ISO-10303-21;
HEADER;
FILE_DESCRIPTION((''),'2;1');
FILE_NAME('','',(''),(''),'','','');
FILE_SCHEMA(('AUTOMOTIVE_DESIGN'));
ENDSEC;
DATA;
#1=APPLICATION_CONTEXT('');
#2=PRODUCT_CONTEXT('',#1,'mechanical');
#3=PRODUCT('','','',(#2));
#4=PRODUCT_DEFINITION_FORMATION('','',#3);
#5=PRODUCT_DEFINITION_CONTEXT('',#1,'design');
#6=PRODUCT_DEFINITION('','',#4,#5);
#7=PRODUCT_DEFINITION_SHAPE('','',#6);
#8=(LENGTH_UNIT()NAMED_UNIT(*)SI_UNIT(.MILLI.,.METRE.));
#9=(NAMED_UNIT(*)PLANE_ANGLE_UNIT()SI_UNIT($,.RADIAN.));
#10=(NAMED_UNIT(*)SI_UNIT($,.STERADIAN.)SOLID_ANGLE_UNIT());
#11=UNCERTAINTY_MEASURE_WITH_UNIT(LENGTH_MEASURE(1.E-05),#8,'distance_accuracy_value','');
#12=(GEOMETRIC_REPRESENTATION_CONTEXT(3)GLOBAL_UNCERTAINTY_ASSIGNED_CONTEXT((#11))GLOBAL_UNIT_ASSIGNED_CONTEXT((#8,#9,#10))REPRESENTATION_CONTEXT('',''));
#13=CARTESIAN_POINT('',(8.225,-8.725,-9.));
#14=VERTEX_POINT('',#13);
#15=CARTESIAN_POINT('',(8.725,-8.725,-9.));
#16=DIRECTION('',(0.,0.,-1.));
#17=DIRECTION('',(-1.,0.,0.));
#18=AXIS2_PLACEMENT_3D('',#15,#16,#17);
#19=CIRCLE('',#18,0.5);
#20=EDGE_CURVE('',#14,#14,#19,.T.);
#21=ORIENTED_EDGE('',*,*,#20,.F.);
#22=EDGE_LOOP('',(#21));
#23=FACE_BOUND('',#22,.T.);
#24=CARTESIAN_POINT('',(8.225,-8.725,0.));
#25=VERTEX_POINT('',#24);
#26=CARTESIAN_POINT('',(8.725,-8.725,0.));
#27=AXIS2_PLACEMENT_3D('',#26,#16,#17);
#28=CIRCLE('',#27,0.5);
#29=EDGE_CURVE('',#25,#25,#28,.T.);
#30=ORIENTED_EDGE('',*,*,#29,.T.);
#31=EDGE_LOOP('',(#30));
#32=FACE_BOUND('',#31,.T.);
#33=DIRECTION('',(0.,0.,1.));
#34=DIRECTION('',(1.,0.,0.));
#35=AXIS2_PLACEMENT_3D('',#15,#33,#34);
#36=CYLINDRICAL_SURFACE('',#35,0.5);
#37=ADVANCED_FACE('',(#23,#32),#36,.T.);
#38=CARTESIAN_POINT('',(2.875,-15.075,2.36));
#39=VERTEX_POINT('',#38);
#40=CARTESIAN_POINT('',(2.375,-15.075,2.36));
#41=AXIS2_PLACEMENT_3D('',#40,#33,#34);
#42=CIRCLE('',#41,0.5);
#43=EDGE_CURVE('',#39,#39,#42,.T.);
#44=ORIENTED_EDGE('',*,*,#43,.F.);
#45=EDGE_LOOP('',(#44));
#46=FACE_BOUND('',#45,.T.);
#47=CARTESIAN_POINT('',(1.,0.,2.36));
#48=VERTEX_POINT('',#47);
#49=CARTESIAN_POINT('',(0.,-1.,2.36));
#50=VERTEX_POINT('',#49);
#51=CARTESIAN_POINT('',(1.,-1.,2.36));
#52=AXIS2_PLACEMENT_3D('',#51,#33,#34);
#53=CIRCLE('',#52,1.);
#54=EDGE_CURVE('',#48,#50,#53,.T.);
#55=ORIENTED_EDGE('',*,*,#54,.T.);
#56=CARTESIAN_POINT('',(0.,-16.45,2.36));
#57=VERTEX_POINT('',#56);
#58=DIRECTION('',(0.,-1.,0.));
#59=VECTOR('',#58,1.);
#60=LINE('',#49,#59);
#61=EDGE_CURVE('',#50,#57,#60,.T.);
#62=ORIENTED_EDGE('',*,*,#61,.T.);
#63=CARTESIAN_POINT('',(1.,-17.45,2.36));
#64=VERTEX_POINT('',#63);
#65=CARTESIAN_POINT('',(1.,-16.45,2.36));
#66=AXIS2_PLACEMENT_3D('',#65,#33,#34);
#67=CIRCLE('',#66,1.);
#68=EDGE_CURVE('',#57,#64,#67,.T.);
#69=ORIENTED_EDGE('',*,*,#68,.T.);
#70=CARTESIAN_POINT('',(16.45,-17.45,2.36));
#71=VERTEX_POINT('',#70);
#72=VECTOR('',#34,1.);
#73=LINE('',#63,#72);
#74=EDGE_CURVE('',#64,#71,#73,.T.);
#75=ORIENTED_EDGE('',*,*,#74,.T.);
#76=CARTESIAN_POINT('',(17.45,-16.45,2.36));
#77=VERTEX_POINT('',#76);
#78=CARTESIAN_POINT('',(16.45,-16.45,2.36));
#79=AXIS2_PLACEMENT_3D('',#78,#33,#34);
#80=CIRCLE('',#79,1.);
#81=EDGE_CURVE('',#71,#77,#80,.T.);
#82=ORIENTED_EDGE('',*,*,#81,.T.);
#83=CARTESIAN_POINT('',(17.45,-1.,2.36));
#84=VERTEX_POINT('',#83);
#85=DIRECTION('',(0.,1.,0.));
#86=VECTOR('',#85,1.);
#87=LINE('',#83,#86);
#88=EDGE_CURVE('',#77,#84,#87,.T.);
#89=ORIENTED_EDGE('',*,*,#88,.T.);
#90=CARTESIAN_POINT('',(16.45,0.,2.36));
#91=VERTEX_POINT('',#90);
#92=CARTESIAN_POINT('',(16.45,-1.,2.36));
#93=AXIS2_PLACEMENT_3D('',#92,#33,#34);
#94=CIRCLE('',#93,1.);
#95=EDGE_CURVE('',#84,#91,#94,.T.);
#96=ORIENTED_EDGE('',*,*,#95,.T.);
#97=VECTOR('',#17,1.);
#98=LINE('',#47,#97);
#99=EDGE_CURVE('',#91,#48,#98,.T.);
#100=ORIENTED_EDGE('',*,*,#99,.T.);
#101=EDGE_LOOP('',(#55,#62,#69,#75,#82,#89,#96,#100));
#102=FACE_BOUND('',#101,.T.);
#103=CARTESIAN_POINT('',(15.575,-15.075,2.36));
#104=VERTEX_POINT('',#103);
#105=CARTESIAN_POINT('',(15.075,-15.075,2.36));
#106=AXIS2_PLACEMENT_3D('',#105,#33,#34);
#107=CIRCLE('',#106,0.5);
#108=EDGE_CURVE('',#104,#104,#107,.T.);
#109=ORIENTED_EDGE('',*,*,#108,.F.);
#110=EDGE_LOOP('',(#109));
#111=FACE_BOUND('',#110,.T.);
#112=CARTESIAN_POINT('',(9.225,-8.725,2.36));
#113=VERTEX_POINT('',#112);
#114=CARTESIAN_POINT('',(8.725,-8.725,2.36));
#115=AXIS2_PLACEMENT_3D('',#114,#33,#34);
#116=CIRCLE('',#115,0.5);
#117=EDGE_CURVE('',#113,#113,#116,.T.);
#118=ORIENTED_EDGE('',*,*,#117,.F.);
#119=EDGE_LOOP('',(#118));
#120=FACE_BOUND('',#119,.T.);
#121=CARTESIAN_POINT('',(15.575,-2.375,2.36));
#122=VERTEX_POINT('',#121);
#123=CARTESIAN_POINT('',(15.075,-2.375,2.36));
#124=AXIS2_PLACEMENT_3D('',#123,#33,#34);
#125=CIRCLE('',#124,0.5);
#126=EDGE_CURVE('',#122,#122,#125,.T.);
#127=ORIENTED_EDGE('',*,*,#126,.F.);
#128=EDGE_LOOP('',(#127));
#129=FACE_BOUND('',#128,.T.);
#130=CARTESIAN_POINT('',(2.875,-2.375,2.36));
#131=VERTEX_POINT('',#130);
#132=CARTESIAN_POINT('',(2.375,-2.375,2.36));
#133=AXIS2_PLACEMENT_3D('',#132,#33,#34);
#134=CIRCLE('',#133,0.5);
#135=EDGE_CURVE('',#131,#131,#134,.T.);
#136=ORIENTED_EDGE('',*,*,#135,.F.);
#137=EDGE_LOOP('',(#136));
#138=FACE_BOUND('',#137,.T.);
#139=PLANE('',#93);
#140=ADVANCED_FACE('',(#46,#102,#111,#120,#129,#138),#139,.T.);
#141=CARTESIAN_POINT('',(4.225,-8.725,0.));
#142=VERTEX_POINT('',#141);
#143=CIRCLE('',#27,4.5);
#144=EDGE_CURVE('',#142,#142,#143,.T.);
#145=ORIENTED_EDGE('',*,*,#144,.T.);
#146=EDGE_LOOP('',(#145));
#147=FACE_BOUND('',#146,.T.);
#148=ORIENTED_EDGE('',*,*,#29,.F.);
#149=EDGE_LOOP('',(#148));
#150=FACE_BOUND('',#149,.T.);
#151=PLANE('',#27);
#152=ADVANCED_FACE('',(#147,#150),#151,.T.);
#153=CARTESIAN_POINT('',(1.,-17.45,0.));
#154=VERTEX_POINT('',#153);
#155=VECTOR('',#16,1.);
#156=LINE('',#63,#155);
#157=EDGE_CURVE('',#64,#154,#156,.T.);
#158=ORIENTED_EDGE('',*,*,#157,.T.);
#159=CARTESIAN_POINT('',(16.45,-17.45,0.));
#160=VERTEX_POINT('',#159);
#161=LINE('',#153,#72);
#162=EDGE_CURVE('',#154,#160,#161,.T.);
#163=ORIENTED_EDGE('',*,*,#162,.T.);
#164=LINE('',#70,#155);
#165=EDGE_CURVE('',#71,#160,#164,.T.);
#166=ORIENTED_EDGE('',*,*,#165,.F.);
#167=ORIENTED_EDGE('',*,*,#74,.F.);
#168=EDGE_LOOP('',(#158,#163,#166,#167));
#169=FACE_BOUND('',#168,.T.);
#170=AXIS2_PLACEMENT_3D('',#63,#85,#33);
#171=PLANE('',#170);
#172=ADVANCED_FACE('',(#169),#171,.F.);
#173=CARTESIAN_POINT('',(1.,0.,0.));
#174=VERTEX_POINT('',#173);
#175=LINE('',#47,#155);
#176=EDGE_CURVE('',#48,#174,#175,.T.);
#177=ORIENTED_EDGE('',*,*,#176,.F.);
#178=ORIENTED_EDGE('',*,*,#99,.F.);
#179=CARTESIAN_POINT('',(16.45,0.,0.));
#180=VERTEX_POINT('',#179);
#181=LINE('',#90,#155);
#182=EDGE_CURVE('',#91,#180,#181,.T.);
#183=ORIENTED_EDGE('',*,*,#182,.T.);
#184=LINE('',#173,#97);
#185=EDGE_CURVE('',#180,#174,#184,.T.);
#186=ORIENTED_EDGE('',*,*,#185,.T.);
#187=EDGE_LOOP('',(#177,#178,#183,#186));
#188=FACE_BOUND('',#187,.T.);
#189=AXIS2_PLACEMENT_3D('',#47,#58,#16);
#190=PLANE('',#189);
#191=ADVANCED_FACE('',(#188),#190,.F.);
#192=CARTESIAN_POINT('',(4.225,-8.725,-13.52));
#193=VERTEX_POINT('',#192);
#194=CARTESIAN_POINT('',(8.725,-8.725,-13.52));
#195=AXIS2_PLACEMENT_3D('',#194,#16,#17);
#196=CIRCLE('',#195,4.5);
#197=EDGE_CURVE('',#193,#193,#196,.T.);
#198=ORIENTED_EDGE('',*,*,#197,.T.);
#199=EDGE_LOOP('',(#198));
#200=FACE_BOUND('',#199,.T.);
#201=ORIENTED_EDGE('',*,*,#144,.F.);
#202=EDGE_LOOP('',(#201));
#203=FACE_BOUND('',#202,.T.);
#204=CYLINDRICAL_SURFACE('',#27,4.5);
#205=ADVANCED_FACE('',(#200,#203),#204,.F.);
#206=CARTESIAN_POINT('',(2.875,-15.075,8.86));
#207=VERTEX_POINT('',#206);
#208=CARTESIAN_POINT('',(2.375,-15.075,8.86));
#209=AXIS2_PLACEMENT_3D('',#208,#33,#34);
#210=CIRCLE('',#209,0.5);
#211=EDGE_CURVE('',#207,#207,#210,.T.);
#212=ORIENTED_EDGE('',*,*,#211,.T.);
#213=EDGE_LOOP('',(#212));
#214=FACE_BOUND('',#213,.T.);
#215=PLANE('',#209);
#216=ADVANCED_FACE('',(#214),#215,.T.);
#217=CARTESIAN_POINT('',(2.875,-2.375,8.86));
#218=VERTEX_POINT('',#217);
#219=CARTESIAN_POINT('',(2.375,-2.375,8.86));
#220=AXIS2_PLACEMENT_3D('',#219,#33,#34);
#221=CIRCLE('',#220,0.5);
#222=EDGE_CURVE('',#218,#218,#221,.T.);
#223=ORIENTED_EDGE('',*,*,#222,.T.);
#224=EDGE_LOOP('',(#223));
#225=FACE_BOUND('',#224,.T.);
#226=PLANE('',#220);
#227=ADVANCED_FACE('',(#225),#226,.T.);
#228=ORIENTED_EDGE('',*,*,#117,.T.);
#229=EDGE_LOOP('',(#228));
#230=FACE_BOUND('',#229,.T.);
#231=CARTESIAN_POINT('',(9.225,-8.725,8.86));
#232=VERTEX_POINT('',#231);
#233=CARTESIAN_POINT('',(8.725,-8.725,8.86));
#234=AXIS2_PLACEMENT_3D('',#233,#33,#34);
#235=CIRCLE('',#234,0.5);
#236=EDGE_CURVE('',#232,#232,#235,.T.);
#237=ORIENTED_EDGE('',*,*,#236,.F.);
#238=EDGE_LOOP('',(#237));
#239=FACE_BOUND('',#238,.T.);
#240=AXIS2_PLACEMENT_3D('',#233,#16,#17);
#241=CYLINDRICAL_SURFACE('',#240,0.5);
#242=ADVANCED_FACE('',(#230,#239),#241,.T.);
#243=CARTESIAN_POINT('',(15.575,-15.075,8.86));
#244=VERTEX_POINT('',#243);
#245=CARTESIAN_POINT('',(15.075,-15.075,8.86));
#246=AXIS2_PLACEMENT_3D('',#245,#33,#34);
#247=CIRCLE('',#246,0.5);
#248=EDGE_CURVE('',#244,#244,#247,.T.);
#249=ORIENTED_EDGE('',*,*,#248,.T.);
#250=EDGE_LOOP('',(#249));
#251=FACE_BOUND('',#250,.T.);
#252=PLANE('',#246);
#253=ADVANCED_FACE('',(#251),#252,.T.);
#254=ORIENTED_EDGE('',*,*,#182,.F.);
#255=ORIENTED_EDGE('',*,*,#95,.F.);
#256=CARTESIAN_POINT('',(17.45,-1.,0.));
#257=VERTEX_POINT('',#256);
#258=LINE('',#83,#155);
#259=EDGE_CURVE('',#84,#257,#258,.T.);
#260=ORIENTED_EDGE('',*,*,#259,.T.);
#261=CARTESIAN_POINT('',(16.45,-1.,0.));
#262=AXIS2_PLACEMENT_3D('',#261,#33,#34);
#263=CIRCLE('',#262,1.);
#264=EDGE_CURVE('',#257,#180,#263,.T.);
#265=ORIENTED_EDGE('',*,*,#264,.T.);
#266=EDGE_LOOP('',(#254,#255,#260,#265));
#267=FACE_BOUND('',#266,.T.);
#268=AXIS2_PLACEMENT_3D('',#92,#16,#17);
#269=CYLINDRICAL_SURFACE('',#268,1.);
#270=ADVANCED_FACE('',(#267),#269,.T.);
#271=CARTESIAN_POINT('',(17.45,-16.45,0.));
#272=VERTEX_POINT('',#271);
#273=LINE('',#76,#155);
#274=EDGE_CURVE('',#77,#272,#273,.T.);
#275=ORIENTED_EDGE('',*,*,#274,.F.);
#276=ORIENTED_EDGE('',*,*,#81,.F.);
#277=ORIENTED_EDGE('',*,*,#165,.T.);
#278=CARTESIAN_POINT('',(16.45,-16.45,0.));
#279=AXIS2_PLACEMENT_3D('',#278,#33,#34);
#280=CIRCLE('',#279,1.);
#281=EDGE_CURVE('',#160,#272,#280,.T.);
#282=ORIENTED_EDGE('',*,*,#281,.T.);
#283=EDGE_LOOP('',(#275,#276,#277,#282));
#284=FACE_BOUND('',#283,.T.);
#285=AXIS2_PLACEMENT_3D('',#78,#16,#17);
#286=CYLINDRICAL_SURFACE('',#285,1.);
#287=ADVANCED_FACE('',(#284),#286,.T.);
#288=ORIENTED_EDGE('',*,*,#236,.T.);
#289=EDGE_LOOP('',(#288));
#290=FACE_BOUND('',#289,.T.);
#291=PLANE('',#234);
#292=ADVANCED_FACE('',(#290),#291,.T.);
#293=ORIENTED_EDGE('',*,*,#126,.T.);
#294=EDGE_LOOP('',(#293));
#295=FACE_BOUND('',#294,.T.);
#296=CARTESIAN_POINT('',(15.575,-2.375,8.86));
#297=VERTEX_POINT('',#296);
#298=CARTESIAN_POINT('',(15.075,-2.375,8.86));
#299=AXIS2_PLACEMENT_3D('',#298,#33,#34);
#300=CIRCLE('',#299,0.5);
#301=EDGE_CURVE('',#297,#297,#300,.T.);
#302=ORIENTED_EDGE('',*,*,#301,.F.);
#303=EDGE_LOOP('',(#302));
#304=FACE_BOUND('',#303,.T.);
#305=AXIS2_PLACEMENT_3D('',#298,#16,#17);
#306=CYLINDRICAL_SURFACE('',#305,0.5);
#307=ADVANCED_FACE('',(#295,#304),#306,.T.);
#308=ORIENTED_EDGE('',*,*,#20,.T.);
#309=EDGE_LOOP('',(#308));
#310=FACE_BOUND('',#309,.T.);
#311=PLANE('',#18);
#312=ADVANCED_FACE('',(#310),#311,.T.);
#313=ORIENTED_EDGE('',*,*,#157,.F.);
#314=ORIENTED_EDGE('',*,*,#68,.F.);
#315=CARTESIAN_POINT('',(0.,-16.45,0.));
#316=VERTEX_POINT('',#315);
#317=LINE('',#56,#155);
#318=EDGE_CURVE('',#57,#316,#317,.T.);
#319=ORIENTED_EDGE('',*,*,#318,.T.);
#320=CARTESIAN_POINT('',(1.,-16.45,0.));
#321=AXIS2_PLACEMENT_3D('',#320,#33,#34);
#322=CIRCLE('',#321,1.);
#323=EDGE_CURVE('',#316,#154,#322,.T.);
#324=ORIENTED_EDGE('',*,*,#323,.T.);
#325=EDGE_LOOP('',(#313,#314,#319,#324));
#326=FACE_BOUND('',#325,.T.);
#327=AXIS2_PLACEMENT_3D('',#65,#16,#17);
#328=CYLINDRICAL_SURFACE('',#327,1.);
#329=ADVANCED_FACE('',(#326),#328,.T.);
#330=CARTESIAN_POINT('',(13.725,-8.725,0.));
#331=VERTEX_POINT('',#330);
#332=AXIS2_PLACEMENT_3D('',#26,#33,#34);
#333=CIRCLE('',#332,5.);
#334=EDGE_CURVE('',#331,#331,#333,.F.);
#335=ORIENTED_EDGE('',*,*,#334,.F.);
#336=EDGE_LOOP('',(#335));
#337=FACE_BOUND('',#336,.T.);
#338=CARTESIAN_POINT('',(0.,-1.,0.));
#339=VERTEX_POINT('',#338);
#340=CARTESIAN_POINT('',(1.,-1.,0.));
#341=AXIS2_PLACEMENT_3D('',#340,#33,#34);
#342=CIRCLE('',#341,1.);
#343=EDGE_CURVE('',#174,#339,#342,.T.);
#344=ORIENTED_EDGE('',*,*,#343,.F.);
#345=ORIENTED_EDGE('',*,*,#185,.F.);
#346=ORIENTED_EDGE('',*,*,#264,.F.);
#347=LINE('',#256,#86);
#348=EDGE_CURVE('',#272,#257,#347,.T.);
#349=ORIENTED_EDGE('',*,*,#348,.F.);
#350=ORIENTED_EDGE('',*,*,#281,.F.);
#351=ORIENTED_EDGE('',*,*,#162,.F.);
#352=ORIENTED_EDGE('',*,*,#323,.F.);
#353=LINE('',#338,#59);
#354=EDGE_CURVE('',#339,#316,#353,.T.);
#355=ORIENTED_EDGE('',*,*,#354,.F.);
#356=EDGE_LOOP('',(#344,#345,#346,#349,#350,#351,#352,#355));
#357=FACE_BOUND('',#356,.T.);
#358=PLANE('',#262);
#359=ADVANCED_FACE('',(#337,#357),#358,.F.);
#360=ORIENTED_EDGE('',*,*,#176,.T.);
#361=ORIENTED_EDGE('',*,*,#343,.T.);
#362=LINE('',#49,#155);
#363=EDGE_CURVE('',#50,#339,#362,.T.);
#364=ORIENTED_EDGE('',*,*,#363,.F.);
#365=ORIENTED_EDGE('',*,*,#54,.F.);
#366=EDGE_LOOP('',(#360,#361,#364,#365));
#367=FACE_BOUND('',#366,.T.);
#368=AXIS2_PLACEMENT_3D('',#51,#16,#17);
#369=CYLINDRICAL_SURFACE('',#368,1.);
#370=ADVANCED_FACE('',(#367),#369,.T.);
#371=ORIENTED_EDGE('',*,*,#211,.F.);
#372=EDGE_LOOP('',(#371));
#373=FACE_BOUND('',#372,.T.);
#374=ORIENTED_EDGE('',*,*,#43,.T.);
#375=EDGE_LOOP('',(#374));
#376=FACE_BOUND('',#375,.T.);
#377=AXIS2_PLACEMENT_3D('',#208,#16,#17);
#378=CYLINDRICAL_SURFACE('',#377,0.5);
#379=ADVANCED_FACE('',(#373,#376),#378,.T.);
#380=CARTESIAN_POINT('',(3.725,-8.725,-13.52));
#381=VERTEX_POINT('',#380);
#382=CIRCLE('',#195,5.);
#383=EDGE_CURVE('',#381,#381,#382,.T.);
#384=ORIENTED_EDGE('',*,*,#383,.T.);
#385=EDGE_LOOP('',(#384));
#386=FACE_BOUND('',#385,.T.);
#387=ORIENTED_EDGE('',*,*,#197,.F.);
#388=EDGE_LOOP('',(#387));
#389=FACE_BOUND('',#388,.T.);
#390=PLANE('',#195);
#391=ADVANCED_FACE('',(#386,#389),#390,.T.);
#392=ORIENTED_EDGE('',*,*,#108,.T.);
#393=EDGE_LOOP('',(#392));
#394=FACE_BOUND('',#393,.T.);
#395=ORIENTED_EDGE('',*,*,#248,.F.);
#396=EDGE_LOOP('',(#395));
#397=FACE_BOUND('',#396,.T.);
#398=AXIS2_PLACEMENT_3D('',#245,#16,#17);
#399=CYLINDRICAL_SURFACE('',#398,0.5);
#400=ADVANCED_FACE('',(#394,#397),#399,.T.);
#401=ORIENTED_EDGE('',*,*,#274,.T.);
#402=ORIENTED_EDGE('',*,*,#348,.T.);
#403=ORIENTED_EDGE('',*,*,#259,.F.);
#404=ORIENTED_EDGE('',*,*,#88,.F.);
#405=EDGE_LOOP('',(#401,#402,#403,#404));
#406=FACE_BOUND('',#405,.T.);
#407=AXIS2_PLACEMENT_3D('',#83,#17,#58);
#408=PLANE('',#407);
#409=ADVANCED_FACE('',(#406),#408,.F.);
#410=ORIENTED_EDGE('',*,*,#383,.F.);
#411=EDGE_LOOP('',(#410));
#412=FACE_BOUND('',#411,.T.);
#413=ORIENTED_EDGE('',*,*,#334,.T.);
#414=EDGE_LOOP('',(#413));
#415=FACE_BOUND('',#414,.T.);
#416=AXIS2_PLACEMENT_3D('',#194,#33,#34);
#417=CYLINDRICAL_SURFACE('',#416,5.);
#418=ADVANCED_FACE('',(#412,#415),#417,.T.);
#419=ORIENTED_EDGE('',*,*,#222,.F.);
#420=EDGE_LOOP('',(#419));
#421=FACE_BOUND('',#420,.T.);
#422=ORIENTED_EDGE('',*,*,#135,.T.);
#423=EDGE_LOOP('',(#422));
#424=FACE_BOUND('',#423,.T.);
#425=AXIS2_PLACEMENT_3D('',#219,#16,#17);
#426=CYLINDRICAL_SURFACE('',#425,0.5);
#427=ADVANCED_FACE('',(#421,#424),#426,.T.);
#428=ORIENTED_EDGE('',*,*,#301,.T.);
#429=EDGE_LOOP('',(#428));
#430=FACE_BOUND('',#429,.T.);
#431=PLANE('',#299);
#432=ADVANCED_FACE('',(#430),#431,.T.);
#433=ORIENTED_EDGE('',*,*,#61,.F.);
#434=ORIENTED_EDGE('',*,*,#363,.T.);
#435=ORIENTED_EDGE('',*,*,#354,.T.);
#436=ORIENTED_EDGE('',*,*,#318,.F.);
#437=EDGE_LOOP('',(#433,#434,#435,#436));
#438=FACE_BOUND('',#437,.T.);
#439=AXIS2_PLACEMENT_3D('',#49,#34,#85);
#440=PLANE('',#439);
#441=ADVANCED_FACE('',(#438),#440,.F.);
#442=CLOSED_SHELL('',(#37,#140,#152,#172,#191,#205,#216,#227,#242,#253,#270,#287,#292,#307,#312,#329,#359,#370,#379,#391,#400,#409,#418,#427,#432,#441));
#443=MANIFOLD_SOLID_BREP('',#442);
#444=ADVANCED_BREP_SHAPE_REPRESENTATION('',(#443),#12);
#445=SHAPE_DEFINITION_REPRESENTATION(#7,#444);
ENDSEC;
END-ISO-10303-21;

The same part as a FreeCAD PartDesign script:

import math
import FreeCAD as App
import Part
import Sketcher
from FreeCAD import Vector

doc = App.newDocument("Part")
body = doc.addObject("PartDesign::Body", "Body")

sketch1 = doc.addObject("Sketcher::SketchObject", "Sketch")
body.addObject(sketch1)
sketch1.AttachmentSupport = (doc.XY_Plane, [""])
sketch1.MapMode = "FlatFace"
sketch1.addGeometry([
    Part.LineSegment(Vector(16.4, 0, 0), Vector(1, 0, 0)),
    Part.ArcOfCircle(Part.Circle(Vector(1, -1, 0), Vector(0, 0, 1), 1), math.radians(90), math.radians(180)),
    Part.LineSegment(Vector(0, -1, 0), Vector(0, -16.4, 0)),
    Part.ArcOfCircle(Part.Circle(Vector(1, -16.4, 0), Vector(0, 0, 1), 1), math.radians(-180), math.radians(-90)),
    Part.LineSegment(Vector(1, -17.4, 0), Vector(16.4, -17.4, 0)),
    Part.ArcOfCircle(Part.Circle(Vector(16.4, -16.4, 0), Vector(0, 0, 1), 1), math.radians(-90), math.radians(0)),
    Part.LineSegment(Vector(17.4, -16.4, 0), Vector(17.4, -1, 0)),
    Part.ArcOfCircle(Part.Circle(Vector(16.4, -1, 0), Vector(0, 0, 1), 1), math.radians(0), math.radians(90)),
], False)
sketch1.addConstraint([
    Sketcher.Constraint("Tangent", 0, 2, 1, 1),
    Sketcher.Constraint("Tangent", 1, 2, 2, 1),
    Sketcher.Constraint("Tangent", 2, 2, 3, 1),
    Sketcher.Constraint("Tangent", 3, 2, 4, 1),
    Sketcher.Constraint("Tangent", 4, 2, 5, 1),
    Sketcher.Constraint("Tangent", 5, 2, 6, 1),
    Sketcher.Constraint("Tangent", 6, 2, 7, 1),
    Sketcher.Constraint("Tangent", 7, 2, 0, 1),
    Sketcher.Constraint("Horizontal", 0),
    Sketcher.Constraint("Vertical", 2),
    Sketcher.Constraint("Horizontal", 4),
    Sketcher.Constraint("Vertical", 6),
    Sketcher.Constraint("Equal", 1, 3),
    Sketcher.Constraint("Equal", 3, 5),
    Sketcher.Constraint("Equal", 5, 7),
    Sketcher.Constraint("PointOnObject", 0, 2, -1),
    Sketcher.Constraint("PointOnObject", 1, 2, -2),
    Sketcher.Constraint("Equal", 4, 2),
    Sketcher.Constraint("Radius", 1, 1.0),
    Sketcher.Constraint("DistanceX", 0, 2, 0, 1, 15.45),
])
pad1 = doc.addObject("PartDesign::Pad", "Pad")
body.addObject(pad1)
pad1.Profile = sketch1
pad1.Length = 2.36

sketch2 = doc.addObject("Sketcher::SketchObject", "Sketch001")
body.addObject(sketch2)
sketch2.AttachmentSupport = (doc.XY_Plane, [""])
sketch2.MapMode = "FlatFace"
sketch2.addGeometry(Part.Circle(Vector(9, -9, 0), Vector(0, 0, 1), 5), False)
sketch2.addConstraint([
    Sketcher.Constraint("Diameter", 0, 10.0),
    Sketcher.Constraint("DistanceX", -1, 1, 0, 3, 8.725),
    Sketcher.Constraint("DistanceY", 0, 3, -1, 1, 8.725),
])
pad2 = doc.addObject("PartDesign::Pad", "Pad001")
body.addObject(pad2)
pad2.Profile = sketch2
pad2.Length = 13.52
pad2.Reversed = True

sketch3 = doc.addObject("Sketcher::SketchObject", "Sketch002")
body.addObject(sketch3)
sketch3.AttachmentSupport = (doc.XY_Plane, [""])
sketch3.MapMode = "FlatFace"
sketch3.AttachmentOffset = App.Placement(Vector(0, 0, -13.52), App.Rotation())
sketch3.addGeometry(Part.Circle(Vector(8.7, -8.7, 0), Vector(0, 0, 1), 4.5), False)
sketch3.addConstraint([
    Sketcher.Constraint("Diameter", 0, 9.0),
    Sketcher.Constraint("DistanceX", -1, 1, 0, 3, 8.725),
    Sketcher.Constraint("DistanceY", 0, 3, -1, 1, 8.725),
])
pocket1 = doc.addObject("PartDesign::Pocket", "Pocket")
body.addObject(pocket1)
pocket1.Profile = sketch3
pocket1.Length = 13.52
pocket1.Reversed = True

sketch4 = doc.addObject("Sketcher::SketchObject", "Sketch003")
body.addObject(sketch4)
sketch4.AttachmentSupport = (doc.XY_Plane, [""])
sketch4.MapMode = "FlatFace"
sketch4.AttachmentOffset = App.Placement(Vector(0, 0, 2.36), App.Rotation())
sketch4.addGeometry([
    Part.Circle(Vector(8.7, -8.7, 0), Vector(0, 0, 1), 0.5),
    Part.Circle(Vector(15.1, -2.4, 0), Vector(0, 0, 1), 0.5),
    Part.Circle(Vector(2.4, -2.4, 0), Vector(0, 0, 1), 0.5),
    Part.Circle(Vector(2.4, -15.1, 0), Vector(0, 0, 1), 0.5),
    Part.Circle(Vector(15.1, -15.1, 0), Vector(0, 0, 1), 0.5),
], False)
sketch4.addConstraint([
    Sketcher.Constraint("Equal", 0, 1),
    Sketcher.Constraint("Equal", 1, 2),
    Sketcher.Constraint("Equal", 2, 3),
    Sketcher.Constraint("Equal", 3, 4),
    Sketcher.Constraint("Horizontal", 1, 3, 2, 3),
    Sketcher.Constraint("Horizontal", 3, 3, 4, 3),
    Sketcher.Constraint("Vertical", 2, 3, 3, 3),
    Sketcher.Constraint("Vertical", 1, 3, 4, 3),
    Sketcher.Constraint("Diameter", 0, 1.0),
    Sketcher.Constraint("DistanceX", 2, 3, 1, 3, 12.7),
    Sketcher.Constraint("DistanceY", 3, 3, 2, 3, 12.7),
    Sketcher.Constraint("DistanceX", 0, 3, 1, 3, 6.35),
    Sketcher.Constraint("DistanceY", 0, 3, 1, 3, 6.35),
    Sketcher.Constraint("DistanceX", -1, 1, 0, 3, 8.725),
    Sketcher.Constraint("DistanceY", 0, 3, -1, 1, 8.725),
])
pad3 = doc.addObject("PartDesign::Pad", "Pad002")
body.addObject(pad3)
pad3.Profile = sketch4
pad3.Length = 6.5

sketch5 = doc.addObject("Sketcher::SketchObject", "Sketch004")
body.addObject(sketch5)
sketch5.AttachmentSupport = (doc.XY_Plane, [""])
sketch5.MapMode = "FlatFace"
sketch5.addGeometry(Part.Circle(Vector(8.7, -8.7, 0), Vector(0, 0, 1), 0.5), False)
sketch5.addConstraint([
    Sketcher.Constraint("Diameter", 0, 1.0),
    Sketcher.Constraint("DistanceX", -1, 1, 0, 3, 8.725),
    Sketcher.Constraint("DistanceY", 0, 3, -1, 1, 8.725),
])
pad4 = doc.addObject("PartDesign::Pad", "Pad003")
body.addObject(pad4)
pad4.Profile = sketch5
pad4.Length = 9
pad4.Reversed = True

doc.recompute()
